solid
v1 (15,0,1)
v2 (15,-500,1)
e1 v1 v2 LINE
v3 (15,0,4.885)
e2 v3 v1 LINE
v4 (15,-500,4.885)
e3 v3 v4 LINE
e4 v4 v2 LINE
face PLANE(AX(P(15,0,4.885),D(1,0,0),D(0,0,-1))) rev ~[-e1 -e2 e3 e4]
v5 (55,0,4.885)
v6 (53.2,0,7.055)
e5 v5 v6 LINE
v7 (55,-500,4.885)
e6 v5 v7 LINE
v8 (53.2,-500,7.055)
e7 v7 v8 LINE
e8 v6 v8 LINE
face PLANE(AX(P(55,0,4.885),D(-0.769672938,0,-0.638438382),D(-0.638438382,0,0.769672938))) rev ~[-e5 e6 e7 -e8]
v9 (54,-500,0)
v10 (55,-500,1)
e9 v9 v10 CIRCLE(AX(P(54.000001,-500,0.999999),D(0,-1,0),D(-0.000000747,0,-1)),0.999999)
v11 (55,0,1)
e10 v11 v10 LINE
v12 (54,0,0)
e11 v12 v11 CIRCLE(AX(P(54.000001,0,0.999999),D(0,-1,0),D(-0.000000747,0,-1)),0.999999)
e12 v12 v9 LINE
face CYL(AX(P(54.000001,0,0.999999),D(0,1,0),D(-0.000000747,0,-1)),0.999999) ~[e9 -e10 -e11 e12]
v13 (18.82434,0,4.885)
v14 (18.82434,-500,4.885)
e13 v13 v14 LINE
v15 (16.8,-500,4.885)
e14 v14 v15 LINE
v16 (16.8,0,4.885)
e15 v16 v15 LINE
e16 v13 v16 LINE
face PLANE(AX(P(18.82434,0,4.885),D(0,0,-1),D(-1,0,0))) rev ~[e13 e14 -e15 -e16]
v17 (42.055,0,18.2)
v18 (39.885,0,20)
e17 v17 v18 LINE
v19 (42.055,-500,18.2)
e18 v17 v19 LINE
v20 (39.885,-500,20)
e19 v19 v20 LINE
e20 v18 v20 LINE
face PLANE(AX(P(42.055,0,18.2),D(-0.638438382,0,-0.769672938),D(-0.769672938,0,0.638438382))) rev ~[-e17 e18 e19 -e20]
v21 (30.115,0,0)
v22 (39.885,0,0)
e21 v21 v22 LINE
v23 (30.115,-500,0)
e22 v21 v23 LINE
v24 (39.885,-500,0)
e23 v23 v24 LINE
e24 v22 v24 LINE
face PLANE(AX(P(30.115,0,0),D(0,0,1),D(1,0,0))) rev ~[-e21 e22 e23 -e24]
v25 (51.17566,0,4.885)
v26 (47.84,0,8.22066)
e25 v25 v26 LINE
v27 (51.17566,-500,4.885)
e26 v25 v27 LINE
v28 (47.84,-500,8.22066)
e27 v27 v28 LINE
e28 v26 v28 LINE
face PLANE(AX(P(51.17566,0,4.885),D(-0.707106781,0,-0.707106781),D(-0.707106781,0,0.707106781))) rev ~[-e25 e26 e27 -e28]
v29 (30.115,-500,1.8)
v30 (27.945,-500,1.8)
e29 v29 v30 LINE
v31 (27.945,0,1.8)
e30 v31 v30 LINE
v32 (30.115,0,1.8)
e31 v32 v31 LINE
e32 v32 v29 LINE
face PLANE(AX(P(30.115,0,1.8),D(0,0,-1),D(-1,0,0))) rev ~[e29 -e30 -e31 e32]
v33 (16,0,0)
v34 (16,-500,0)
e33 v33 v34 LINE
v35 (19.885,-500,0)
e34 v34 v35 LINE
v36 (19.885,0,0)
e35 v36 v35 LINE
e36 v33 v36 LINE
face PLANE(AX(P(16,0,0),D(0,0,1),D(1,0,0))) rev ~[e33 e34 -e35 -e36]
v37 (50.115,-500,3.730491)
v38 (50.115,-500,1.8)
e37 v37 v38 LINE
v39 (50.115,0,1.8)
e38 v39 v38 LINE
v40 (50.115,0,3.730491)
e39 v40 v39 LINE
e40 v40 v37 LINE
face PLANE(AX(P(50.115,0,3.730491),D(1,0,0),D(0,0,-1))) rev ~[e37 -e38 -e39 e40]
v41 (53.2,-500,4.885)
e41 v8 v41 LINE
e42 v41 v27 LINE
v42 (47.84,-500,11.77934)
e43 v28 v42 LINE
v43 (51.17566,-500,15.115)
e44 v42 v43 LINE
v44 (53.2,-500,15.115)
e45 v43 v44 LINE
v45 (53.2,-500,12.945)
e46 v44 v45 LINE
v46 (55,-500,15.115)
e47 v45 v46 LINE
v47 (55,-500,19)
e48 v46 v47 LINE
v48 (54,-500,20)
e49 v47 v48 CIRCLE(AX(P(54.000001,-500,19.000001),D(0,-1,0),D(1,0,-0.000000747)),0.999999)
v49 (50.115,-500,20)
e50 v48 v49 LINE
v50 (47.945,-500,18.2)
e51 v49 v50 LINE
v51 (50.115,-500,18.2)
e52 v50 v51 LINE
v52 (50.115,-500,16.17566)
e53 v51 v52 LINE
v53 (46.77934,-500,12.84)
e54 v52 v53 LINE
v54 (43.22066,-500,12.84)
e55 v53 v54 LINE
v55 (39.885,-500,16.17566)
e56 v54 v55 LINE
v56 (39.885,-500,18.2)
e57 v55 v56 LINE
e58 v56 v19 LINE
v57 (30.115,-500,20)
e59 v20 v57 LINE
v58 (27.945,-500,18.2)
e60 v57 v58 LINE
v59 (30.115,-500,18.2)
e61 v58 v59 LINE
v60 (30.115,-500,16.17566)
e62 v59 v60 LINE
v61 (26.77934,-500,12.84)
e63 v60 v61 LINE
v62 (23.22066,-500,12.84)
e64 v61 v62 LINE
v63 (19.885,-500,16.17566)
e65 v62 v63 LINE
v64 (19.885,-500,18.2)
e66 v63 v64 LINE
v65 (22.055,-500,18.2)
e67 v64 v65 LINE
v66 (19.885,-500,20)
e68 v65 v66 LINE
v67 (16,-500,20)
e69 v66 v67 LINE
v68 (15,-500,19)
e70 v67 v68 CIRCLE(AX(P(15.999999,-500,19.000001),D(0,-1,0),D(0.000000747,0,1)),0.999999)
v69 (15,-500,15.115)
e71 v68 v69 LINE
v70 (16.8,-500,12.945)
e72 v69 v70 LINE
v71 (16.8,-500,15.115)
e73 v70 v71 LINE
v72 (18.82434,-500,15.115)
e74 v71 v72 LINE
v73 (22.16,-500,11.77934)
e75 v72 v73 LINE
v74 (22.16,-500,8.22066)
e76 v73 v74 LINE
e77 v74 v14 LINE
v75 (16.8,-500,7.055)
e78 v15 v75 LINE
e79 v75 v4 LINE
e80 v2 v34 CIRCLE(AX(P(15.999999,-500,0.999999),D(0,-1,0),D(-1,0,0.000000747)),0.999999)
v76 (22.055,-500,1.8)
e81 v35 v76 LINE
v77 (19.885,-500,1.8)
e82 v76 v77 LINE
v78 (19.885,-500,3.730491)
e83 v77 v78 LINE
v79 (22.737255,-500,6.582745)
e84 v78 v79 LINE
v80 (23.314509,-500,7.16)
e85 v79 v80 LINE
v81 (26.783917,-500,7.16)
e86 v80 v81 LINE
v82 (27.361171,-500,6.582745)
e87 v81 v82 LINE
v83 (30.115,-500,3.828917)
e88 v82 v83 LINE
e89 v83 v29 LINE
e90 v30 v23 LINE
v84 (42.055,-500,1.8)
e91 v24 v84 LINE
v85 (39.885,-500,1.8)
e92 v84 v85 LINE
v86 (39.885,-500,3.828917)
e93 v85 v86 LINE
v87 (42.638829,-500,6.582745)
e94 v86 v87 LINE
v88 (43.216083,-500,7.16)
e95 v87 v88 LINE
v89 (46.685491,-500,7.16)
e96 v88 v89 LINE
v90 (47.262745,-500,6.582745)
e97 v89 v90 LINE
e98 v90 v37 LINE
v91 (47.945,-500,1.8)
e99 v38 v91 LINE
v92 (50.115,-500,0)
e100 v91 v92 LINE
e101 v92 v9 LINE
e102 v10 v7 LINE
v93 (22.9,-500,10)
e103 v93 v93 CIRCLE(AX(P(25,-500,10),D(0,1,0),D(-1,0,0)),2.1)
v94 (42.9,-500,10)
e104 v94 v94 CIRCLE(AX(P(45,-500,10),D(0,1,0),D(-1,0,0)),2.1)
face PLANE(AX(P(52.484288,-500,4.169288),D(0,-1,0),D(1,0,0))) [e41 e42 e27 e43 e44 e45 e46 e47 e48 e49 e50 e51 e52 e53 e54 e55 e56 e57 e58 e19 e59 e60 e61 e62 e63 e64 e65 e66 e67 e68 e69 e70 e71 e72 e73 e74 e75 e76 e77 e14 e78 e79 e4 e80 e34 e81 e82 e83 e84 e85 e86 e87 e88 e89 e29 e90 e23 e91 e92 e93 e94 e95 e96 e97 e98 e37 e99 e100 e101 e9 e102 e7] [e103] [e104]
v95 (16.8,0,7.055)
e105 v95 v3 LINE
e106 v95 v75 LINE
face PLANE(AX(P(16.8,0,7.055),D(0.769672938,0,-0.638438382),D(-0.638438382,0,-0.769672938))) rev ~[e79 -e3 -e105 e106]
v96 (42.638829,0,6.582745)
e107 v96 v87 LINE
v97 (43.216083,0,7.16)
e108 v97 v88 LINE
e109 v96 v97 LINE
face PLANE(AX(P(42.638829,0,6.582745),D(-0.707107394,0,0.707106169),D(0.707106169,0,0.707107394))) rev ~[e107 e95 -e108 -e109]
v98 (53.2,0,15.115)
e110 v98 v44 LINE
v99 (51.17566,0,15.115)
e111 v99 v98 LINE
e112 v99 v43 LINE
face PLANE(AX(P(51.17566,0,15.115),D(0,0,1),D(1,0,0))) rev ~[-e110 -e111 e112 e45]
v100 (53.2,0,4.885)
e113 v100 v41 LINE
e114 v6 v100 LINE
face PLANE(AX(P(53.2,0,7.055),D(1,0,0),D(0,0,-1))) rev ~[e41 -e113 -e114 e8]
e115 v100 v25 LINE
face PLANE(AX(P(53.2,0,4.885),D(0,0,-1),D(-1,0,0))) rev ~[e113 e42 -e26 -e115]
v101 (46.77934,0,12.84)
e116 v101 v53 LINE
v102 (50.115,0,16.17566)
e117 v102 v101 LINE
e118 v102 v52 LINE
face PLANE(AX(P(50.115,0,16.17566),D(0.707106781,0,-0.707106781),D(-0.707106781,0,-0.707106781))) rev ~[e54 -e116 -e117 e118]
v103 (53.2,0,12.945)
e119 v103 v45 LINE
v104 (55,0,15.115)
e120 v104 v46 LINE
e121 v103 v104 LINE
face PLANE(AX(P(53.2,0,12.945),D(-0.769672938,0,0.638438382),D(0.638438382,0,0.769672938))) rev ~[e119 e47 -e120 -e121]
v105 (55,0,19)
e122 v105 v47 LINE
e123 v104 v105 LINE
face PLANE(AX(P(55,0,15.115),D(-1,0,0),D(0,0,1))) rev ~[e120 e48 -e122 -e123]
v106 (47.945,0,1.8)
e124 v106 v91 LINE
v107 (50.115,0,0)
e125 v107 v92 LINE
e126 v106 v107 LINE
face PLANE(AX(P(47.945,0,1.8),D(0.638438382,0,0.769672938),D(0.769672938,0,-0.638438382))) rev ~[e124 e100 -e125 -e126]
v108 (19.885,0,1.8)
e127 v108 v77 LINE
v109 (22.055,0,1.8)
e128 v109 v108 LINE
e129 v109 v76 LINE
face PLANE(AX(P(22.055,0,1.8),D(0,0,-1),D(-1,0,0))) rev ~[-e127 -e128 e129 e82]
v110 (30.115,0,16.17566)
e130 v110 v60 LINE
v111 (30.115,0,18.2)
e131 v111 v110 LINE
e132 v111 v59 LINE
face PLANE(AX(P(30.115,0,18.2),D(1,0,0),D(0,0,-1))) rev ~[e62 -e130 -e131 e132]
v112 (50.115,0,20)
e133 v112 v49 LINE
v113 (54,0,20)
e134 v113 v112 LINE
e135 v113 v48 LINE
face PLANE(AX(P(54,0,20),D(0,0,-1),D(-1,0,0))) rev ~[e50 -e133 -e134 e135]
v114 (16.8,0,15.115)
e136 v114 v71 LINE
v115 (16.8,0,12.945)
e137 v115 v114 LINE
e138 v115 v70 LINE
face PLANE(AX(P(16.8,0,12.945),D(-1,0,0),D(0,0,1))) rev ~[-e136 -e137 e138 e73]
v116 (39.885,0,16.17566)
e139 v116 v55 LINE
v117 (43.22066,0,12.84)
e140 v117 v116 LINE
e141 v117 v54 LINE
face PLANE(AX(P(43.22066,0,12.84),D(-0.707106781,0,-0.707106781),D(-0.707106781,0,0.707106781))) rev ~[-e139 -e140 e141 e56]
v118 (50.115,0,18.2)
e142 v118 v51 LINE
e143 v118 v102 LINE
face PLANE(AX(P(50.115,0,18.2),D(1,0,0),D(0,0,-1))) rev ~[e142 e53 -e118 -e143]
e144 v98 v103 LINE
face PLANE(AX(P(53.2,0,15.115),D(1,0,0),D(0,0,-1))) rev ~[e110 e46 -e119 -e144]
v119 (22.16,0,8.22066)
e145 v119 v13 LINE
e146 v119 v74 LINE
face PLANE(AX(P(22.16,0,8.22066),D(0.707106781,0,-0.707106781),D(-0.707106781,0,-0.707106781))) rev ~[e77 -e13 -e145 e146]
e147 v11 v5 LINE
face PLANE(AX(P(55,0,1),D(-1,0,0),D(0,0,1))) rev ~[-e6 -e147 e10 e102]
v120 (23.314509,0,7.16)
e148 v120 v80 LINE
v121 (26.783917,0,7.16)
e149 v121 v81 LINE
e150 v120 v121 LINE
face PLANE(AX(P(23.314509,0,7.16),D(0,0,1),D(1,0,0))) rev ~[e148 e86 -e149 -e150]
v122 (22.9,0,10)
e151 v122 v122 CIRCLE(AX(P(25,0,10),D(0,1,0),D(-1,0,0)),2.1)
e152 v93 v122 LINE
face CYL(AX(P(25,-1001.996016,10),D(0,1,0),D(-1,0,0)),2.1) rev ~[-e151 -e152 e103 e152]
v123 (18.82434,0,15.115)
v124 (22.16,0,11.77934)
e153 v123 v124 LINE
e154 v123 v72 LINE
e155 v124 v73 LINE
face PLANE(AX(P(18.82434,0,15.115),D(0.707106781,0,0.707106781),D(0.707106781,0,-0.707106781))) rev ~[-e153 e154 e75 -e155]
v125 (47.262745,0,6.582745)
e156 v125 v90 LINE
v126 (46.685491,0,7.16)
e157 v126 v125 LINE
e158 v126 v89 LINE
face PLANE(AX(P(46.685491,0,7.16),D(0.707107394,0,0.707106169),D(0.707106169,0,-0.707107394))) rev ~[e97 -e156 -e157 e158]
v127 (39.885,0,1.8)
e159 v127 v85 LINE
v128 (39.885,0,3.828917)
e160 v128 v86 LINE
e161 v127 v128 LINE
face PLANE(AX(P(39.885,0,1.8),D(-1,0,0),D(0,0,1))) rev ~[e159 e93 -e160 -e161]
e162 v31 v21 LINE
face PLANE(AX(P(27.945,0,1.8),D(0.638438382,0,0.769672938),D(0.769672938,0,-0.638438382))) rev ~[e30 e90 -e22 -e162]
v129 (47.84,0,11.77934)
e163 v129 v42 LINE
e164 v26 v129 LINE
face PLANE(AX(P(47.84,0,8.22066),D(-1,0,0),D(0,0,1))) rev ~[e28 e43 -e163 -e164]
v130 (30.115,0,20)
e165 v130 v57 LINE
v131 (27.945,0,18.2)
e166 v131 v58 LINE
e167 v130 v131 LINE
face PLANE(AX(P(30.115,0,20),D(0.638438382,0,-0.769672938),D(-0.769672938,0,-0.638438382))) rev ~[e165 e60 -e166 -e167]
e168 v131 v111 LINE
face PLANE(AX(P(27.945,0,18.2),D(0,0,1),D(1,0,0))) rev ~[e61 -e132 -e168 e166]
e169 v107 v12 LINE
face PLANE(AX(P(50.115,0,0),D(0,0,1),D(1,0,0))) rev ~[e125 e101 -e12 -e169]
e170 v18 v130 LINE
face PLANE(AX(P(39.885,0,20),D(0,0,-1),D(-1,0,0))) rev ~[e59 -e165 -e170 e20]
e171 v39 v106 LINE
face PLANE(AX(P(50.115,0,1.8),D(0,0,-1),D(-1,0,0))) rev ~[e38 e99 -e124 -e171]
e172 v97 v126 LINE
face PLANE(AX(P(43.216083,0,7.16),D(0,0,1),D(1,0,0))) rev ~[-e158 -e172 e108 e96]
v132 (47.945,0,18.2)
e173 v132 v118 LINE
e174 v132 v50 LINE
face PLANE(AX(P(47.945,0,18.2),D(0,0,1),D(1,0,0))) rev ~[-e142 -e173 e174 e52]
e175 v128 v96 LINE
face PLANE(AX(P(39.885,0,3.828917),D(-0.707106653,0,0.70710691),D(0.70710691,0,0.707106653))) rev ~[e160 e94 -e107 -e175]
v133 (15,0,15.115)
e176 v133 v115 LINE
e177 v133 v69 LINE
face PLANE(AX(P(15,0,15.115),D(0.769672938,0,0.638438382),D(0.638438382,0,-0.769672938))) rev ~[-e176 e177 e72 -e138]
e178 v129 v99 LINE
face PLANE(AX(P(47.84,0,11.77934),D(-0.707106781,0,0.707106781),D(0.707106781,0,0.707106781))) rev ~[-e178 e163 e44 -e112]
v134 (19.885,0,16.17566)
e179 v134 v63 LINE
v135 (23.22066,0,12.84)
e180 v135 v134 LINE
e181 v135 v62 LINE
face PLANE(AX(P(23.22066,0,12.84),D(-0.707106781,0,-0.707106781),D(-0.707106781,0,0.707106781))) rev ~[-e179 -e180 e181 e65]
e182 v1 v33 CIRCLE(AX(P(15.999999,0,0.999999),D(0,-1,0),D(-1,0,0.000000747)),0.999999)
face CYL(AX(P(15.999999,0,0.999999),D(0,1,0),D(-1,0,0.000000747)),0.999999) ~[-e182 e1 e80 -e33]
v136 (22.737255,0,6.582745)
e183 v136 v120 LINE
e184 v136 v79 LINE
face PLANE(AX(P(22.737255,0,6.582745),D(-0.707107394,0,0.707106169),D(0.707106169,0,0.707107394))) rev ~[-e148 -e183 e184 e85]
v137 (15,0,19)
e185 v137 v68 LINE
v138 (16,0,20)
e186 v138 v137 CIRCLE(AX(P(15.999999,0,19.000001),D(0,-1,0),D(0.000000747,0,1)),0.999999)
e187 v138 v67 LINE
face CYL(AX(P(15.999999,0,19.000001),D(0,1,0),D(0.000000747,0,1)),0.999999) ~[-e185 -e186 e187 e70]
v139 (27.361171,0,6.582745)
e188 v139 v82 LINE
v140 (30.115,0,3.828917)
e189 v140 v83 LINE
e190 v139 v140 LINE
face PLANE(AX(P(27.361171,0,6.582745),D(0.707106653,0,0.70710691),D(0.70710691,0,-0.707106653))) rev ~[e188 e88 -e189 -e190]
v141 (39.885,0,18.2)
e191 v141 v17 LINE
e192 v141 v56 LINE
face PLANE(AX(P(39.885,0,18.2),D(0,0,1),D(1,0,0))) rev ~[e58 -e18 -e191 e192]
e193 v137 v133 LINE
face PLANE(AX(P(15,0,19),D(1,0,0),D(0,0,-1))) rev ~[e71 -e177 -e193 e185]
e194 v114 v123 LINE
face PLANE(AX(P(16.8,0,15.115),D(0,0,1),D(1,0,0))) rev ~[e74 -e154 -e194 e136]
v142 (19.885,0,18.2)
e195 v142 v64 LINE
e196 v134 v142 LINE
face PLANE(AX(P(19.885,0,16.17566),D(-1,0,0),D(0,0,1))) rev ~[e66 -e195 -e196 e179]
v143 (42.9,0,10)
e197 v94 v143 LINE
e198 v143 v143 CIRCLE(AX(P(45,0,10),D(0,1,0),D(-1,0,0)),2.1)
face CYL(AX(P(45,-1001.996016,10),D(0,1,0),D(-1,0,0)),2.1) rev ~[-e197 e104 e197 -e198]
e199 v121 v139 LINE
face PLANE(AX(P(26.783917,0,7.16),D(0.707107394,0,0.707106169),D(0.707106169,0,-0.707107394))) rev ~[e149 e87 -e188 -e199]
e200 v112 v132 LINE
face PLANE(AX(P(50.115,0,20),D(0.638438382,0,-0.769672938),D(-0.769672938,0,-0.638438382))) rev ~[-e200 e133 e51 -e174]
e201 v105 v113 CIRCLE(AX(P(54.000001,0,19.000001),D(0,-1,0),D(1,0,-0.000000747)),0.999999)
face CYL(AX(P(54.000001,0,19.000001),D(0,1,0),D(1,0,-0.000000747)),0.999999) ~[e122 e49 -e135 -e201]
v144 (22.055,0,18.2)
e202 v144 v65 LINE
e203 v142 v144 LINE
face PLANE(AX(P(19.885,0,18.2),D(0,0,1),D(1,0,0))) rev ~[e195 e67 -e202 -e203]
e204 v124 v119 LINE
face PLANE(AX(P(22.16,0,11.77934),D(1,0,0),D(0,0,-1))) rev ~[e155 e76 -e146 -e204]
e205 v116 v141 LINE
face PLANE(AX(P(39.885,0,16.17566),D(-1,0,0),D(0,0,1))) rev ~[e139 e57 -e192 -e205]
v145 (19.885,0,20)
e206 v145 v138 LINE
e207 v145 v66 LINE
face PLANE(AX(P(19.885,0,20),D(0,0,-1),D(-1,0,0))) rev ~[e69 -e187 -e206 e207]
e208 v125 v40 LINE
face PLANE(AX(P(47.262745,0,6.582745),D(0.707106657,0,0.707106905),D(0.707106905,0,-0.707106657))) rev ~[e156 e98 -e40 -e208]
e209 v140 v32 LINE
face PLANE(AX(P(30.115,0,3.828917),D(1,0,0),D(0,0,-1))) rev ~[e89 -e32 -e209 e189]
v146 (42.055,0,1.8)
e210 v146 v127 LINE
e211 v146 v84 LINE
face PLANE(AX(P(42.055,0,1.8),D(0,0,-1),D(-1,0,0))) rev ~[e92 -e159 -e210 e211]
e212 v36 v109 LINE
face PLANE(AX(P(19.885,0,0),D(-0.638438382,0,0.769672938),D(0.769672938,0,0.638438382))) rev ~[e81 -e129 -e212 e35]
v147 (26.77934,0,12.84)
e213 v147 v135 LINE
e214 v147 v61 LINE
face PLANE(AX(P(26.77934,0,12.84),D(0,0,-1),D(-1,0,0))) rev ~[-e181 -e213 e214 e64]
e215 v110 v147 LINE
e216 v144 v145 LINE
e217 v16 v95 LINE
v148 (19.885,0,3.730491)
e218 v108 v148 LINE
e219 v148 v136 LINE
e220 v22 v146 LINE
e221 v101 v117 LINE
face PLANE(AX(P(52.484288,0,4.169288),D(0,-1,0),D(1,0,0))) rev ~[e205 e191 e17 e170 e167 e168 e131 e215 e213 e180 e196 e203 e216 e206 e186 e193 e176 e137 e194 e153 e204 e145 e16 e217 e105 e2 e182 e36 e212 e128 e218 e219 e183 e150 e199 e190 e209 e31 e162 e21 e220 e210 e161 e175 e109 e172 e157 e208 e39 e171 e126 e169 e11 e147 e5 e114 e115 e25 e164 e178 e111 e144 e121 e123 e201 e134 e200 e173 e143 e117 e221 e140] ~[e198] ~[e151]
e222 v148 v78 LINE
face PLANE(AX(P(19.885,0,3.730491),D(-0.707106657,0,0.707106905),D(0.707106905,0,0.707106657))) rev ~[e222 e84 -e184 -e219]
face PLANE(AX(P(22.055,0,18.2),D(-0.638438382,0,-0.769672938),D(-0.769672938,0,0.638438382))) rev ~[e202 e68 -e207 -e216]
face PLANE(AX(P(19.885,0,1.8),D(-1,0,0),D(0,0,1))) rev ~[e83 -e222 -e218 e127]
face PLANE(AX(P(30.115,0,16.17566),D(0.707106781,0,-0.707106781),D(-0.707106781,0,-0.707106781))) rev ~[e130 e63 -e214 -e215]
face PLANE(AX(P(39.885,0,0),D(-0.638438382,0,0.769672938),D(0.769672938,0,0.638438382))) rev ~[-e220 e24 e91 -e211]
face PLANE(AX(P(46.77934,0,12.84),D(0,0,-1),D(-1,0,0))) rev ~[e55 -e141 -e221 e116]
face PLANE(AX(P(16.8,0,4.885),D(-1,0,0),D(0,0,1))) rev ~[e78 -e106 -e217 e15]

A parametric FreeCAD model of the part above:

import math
import FreeCAD as App
import Part
import Sketcher

doc = App.newDocument("Part")
body = doc.addObject("PartDesign::Body", "Body")

# Sketch on XZ plane
sketch1 = body.newObject("Sketcher::SketchObject", "Sketch")
sketch1.AttachmentSupport = (doc.getObject("XZ_Plane"), [""])
sketch1.MapMode = "FlatFace"
sketch1.addGeometry(Part.LineSegment(App.Vector(50.1, 1.8, 0), App.Vector(47.9, 1.8, 0)), False)
sketch1.addGeometry(Part.LineSegment(App.Vector(47.9, 1.8, 0), App.Vector(50.1, 0, 0)), False)
sketch1.addGeometry(Part.LineSegment(App.Vector(50.1, 0, 0), App.Vector(54, 0, 0)), False)
sketch1.addGeometry(Part.ArcOfCircle(Part.Circle(App.Vector(54, 1, 0), App.Vector(0, 0, 1), 1), math.radians(-90), math.radians(0)), False)
sketch1.addGeometry(Part.LineSegment(App.Vector(55, 1, 0), App.Vector(55, 4.9, 0)), False)
sketch1.addGeometry(Part.LineSegment(App.Vector(55, 4.9, 0), App.Vector(53.2, 7.1, 0)), False)
sketch1.addGeometry(Part.LineSegment(App.Vector(53.2, 7.1, 0), App.Vector(53.2, 4.9, 0)), False)
sketch1.addGeometry(Part.LineSegment(App.Vector(53.2, 4.9, 0), App.Vector(51.2, 4.9, 0)), False)
sketch1.addGeometry(Part.LineSegment(App.Vector(51.2, 4.9, 0), App.Vector(47.8, 8.2, 0)), False)
sketch1.addGeometry(Part.LineSegment(App.Vector(47.8, 8.2, 0), App.Vector(47.8, 11.8, 0)), False)
sketch1.addGeometry(Part.LineSegment(App.Vector(47.8, 11.8, 0), App.Vector(51.2, 15.1, 0)), False)
sketch1.addGeometry(Part.LineSegment(App.Vector(51.2, 15.1, 0), App.Vector(53.2, 15.1, 0)), False)
sketch1.addGeometry(Part.LineSegment(App.Vector(53.2, 15.1, 0), App.Vector(53.2, 12.9, 0)), False)
sketch1.addGeometry(Part.LineSegment(App.Vector(53.2, 12.9, 0), App.Vector(55, 15.1, 0)), False)
sketch1.addGeometry(Part.LineSegment(App.Vector(55, 15.1, 0), App.Vector(55, 19, 0)), False)
sketch1.addGeometry(Part.ArcOfCircle(Part.Circle(App.Vector(54, 19, 0), App.Vector(0, 0, 1), 1), math.radians(0), math.radians(90)), False)
sketch1.addGeometry(Part.LineSegment(App.Vector(54, 20, 0), App.Vector(50.1, 20, 0)), False)
sketch1.addGeometry(Part.LineSegment(App.Vector(50.1, 20, 0), App.Vector(47.9, 18.2, 0)), False)
sketch1.addGeometry(Part.LineSegment(App.Vector(47.9, 18.2, 0), App.Vector(50.1, 18.2, 0)), False)
sketch1.addGeometry(Part.LineSegment(App.Vector(50.1, 18.2, 0), App.Vector(50.1, 16.2, 0)), False)
sketch1.addGeometry(Part.LineSegment(App.Vector(50.1, 16.2, 0), App.Vector(46.8, 12.8, 0)), False)
sketch1.addGeometry(Part.LineSegment(App.Vector(46.8, 12.8, 0), App.Vector(43.2, 12.8, 0)), False)
sketch1.addGeometry(Part.LineSegment(App.Vector(43.2, 12.8, 0), App.Vector(39.9, 16.2, 0)), False)
sketch1.addGeometry(Part.LineSegment(App.Vector(39.9, 16.2, 0), App.Vector(39.9, 18.2, 0)), False)
sketch1.addGeometry(Part.LineSegment(App.Vector(39.9, 18.2, 0), App.Vector(42.1, 18.2, 0)), False)
sketch1.addGeometry(Part.LineSegment(App.Vector(42.1, 18.2, 0), App.Vector(39.9, 20, 0)), False)
sketch1.addGeometry(Part.LineSegment(App.Vector(39.9, 20, 0), App.Vector(30.1, 20, 0)), False)
sketch1.addGeometry(Part.LineSegment(App.Vector(30.1, 20, 0), App.Vector(27.9, 18.2, 0)), False)
sketch1.addGeometry(Part.LineSegment(App.Vector(27.9, 18.2, 0), App.Vector(30.1, 18.2, 0)), False)
sketch1.addGeometry(Part.LineSegment(App.Vector(30.1, 18.2, 0), App.Vector(30.1, 16.2, 0)), False)
sketch1.addGeometry(Part.LineSegment(App.Vector(30.1, 16.2, 0), App.Vector(26.8, 12.8, 0)), False)
sketch1.addGeometry(Part.LineSegment(App.Vector(26.8, 12.8, 0), App.Vector(23.2, 12.8, 0)), False)
sketch1.addGeometry(Part.LineSegment(App.Vector(23.2, 12.8, 0), App.Vector(19.9, 16.2, 0)), False)
sketch1.addGeometry(Part.LineSegment(App.Vector(19.9, 16.2, 0), App.Vector(19.9, 18.2, 0)), False)
sketch1.addGeometry(Part.LineSegment(App.Vector(19.9, 18.2, 0), App.Vector(22.1, 18.2, 0)), False)
sketch1.addGeometry(Part.LineSegment(App.Vector(22.1, 18.2, 0), App.Vector(19.9, 20, 0)), False)
sketch1.addGeometry(Part.LineSegment(App.Vector(19.9, 20, 0), App.Vector(16, 20, 0)), False)
sketch1.addGeometry(Part.ArcOfCircle(Part.Circle(App.Vector(16, 19, 0), App.Vector(0, 0, 1), 1), math.radians(90), math.radians(180)), False)
sketch1.addGeometry(Part.LineSegment(App.Vector(15, 19, 0), App.Vector(15, 15.1, 0)), False)
sketch1.addGeometry(Part.LineSegment(App.Vector(15, 15.1, 0), App.Vector(16.8, 12.9, 0)), False)
sketch1.addGeometry(Part.LineSegment(App.Vector(16.8, 12.9, 0), App.Vector(16.8, 15.1, 0)), False)
sketch1.addGeometry(Part.LineSegment(App.Vector(16.8, 15.1, 0), App.Vector(18.8, 15.1, 0)), False)
sketch1.addGeometry(Part.LineSegment(App.Vector(18.8, 15.1, 0), App.Vector(22.2, 11.8, 0)), False)
sketch1.addGeometry(Part.LineSegment(App.Vector(22.2, 11.8, 0), App.Vector(22.2, 8.2, 0)), False)
sketch1.addGeometry(Part.LineSegment(App.Vector(22.2, 8.2, 0), App.Vector(18.8, 4.9, 0)), False)
sketch1.addGeometry(Part.LineSegment(App.Vector(18.8, 4.9, 0), App.Vector(16.8, 4.9, 0)), False)
sketch1.addGeometry(Part.LineSegment(App.Vector(16.8, 4.9, 0), App.Vector(16.8, 7.1, 0)), False)
sketch1.addGeometry(Part.LineSegment(App.Vector(16.8, 7.1, 0), App.Vector(15, 4.9, 0)), False)
sketch1.addGeometry(Part.LineSegment(App.Vector(15, 4.9, 0), App.Vector(15, 1, 0)), False)
sketch1.addGeometry(Part.ArcOfCircle(Part.Circle(App.Vector(16, 1, 0), App.Vector(0, 0, 1), 1), math.radians(180), math.radians(270)), False)
sketch1.addGeometry(Part.LineSegment(App.Vector(16, 0, 0), App.Vector(19.9, 0, 0)), False)
sketch1.addGeometry(Part.LineSegment(App.Vector(19.9, 0, 0), App.Vector(22.1, 1.8, 0)), False)
sketch1.addGeometry(Part.LineSegment(App.Vector(22.1, 1.8, 0), App.Vector(19.9, 1.8, 0)), False)
sketch1.addGeometry(Part.LineSegment(App.Vector(19.9, 1.8, 0), App.Vector(19.9, 3.7, 0)), False)
sketch1.addGeometry(Part.LineSegment(App.Vector(19.9, 3.7, 0), App.Vector(22.7, 6.6, 0)), False)
sketch1.addGeometry(Part.LineSegment(App.Vector(22.7, 6.6, 0), App.Vector(23.3, 7.2, 0)), False)
sketch1.addGeometry(Part.LineSegment(App.Vector(23.3, 7.2, 0), App.Vector(26.8, 7.2, 0)), False)
sketch1.addGeometry(Part.LineSegment(App.Vector(26.8, 7.2, 0), App.Vector(27.4, 6.6, 0)), False)
sketch1.addGeometry(Part.LineSegment(App.Vector(27.4, 6.6, 0), App.Vector(30.1, 3.8, 0)), False)
sketch1.addGeometry(Part.LineSegment(App.Vector(30.1, 3.8, 0), App.Vector(30.1, 1.8, 0)), False)
sketch1.addGeometry(Part.LineSegment(App.Vector(30.1, 1.8, 0), App.Vector(27.9, 1.8, 0)), False)
sketch1.addGeometry(Part.LineSegment(App.Vector(27.9, 1.8, 0), App.Vector(30.1, 0, 0)), False)
sketch1.addGeometry(Part.LineSegment(App.Vector(30.1, 0, 0), App.Vector(39.9, 0, 0)), False)
sketch1.addGeometry(Part.LineSegment(App.Vector(39.9, 0, 0), App.Vector(42.1, 1.8, 0)), False)
sketch1.addGeometry(Part.LineSegment(App.Vector(42.1, 1.8, 0), App.Vector(39.9, 1.8, 0)), False)
sketch1.addGeometry(Part.LineSegment(App.Vector(39.9, 1.8, 0), App.Vector(39.9, 3.8, 0)), False)
sketch1.addGeometry(Part.LineSegment(App.Vector(39.9, 3.8, 0), App.Vector(42.6, 6.6, 0)), False)
sketch1.addGeometry(Part.LineSegment(App.Vector(42.6, 6.6, 0), App.Vector(43.2, 7.2, 0)), False)
sketch1.addGeometry(Part.LineSegment(App.Vector(43.2, 7.2, 0), App.Vector(46.7, 7.2, 0)), False)
sketch1.addGeometry(Part.LineSegment(App.Vector(46.7, 7.2, 0), App.Vector(47.3, 6.6, 0)), False)
sketch1.addGeometry(Part.LineSegment(App.Vector(47.3, 6.6, 0), App.Vector(50.1, 3.7, 0)), False)
sketch1.addGeometry(Part.LineSegment(App.Vector(50.1, 3.7, 0), App.Vector(50.1, 1.8, 0)), False)
sketch1.addConstraint(Sketcher.Constraint("Coincident", 0, 2, 1, 1))
sketch1.addConstraint(Sketcher.Constraint("Coincident", 1, 2, 2, 1))
sketch1.addConstraint(Sketcher.Constraint("Tangent", 2, 2, 3, 1))
sketch1.addConstraint(Sketcher.Constraint("Tangent", 3, 2, 4, 1))
sketch1.addConstraint(Sketcher.Constraint("Coincident", 4, 2, 5, 1))
sketch1.addConstraint(Sketcher.Constraint("Coincident", 5, 2, 6, 1))
sketch1.addConstraint(Sketcher.Constraint("Coincident", 6, 2, 7, 1))
sketch1.addConstraint(Sketcher.Constraint("Coincident", 7, 2, 8, 1))
sketch1.addConstraint(Sketcher.Constraint("Coincident", 8, 2, 9, 1))
sketch1.addConstraint(Sketcher.Constraint("Coincident", 9, 2, 10, 1))
sketch1.addConstraint(Sketcher.Constraint("Coincident", 10, 2, 11, 1))
sketch1.addConstraint(Sketcher.Constraint("Coincident", 11, 2, 12, 1))
sketch1.addConstraint(Sketcher.Constraint("Coincident", 12, 2, 13, 1))
sketch1.addConstraint(Sketcher.Constraint("Coincident", 13, 2, 14, 1))
sketch1.addConstraint(Sketcher.Constraint("Tangent", 14, 2, 15, 1))
sketch1.addConstraint(Sketcher.Constraint("Tangent", 15, 2, 16, 1))
sketch1.addConstraint(Sketcher.Constraint("Coincident", 16, 2, 17, 1))
sketch1.addConstraint(Sketcher.Constraint("Coincident", 17, 2, 18, 1))
sketch1.addConstraint(Sketcher.Constraint("Coincident", 18, 2, 19, 1))
sketch1.addConstraint(Sketcher.Constraint("Coincident", 19, 2, 20, 1))
sketch1.addConstraint(Sketcher.Constraint("Coincident", 20, 2, 21, 1))
sketch1.addConstraint(Sketcher.Constraint("Coincident", 21, 2, 22, 1))
sketch1.addConstraint(Sketcher.Constraint("Coincident", 22, 2, 23, 1))
sketch1.addConstraint(Sketcher.Constraint("Coincident", 23, 2, 24, 1))
sketch1.addConstraint(Sketcher.Constraint("Coincident", 24, 2, 25, 1))
sketch1.addConstraint(Sketcher.Constraint("Coincident", 25, 2, 26, 1))
sketch1.addConstraint(Sketcher.Constraint("Coincident", 26, 2, 27, 1))
sketch1.addConstraint(Sketcher.Constraint("Coincident", 27, 2, 28, 1))
sketch1.addConstraint(Sketcher.Constraint("Coincident", 28, 2, 29, 1))
sketch1.addConstraint(Sketcher.Constraint("Coincident", 29, 2, 30, 1))
sketch1.addConstraint(Sketcher.Constraint("Coincident", 30, 2, 31, 1))
sketch1.addConstraint(Sketcher.Constraint("Coincident", 31, 2, 32, 1))
sketch1.addConstraint(Sketcher.Constraint("Coincident", 32, 2, 33, 1))
sketch1.addConstraint(Sketcher.Constraint("Coincident", 33, 2, 34, 1))
sketch1.addConstraint(Sketcher.Constraint("Coincident", 34, 2, 35, 1))
sketch1.addConstraint(Sketcher.Constraint("Coincident", 35, 2, 36, 1))
sketch1.addConstraint(Sketcher.Constraint("Tangent", 36, 2, 37, 1))
sketch1.addConstraint(Sketcher.Constraint("Tangent", 37, 2, 38, 1))
sketch1.addConstraint(Sketcher.Constraint("Coincident", 38, 2, 39, 1))
sketch1.addConstraint(Sketcher.Constraint("Coincident", 39, 2, 40, 1))
sketch1.addConstraint(Sketcher.Constraint("Coincident", 40, 2, 41, 1))
sketch1.addConstraint(Sketcher.Constraint("Coincident", 41, 2, 42, 1))
sketch1.addConstraint(Sketcher.Constraint("Coincident", 42, 2, 43, 1))
sketch1.addConstraint(Sketcher.Constraint("Coincident", 43, 2, 44, 1))
sketch1.addConstraint(Sketcher.Constraint("Coincident", 44, 2, 45, 1))
sketch1.addConstraint(Sketcher.Constraint("Coincident", 45, 2, 46, 1))
sketch1.addConstraint(Sketcher.Constraint("Coincident", 46, 2, 47, 1))
sketch1.addConstraint(Sketcher.Constraint("Coincident", 47, 2, 48, 1))
sketch1.addConstraint(Sketcher.Constraint("Tangent", 48, 2, 49, 1))
sketch1.addConstraint(Sketcher.Constraint("Tangent", 49, 2, 50, 1))
sketch1.addConstraint(Sketcher.Constraint("Coincident", 50, 2, 51, 1))
sketch1.addConstraint(Sketcher.Constraint("Coincident", 51, 2, 52, 1))
sketch1.addConstraint(Sketcher.Constraint("Coincident", 52, 2, 53, 1))
sketch1.addConstraint(Sketcher.Constraint("Coincident", 53, 2, 54, 1))
sketch1.addConstraint(Sketcher.Constraint("Coincident", 54, 2, 55, 1))
sketch1.addConstraint(Sketcher.Constraint("Coincident", 55, 2, 56, 1))
sketch1.addConstraint(Sketcher.Constraint("Coincident", 56, 2, 57, 1))
sketch1.addConstraint(Sketcher.Constraint("Coincident", 57, 2, 58, 1))
sketch1.addConstraint(Sketcher.Constraint("Coincident", 58, 2, 59, 1))
sketch1.addConstraint(Sketcher.Constraint("Coincident", 59, 2, 60, 1))
sketch1.addConstraint(Sketcher.Constraint("Coincident", 60, 2, 61, 1))
sketch1.addConstraint(Sketcher.Constraint("Coincident", 61, 2, 62, 1))
sketch1.addConstraint(Sketcher.Constraint("Coincident", 62, 2, 63, 1))
sketch1.addConstraint(Sketcher.Constraint("Coincident", 63, 2, 64, 1))
sketch1.addConstraint(Sketcher.Constraint("Coincident", 64, 2, 65, 1))
sketch1.addConstraint(Sketcher.Constraint("Coincident", 65, 2, 66, 1))
sketch1.addConstraint(Sketcher.Constraint("Coincident", 66, 2, 67, 1))
sketch1.addConstraint(Sketcher.Constraint("Coincident", 67, 2, 68, 1))
sketch1.addConstraint(Sketcher.Constraint("Coincident", 68, 2, 69, 1))
sketch1.addConstraint(Sketcher.Constraint("Coincident", 69, 2, 70, 1))
sketch1.addConstraint(Sketcher.Constraint("Coincident", 70, 2, 71, 1))
sketch1.addConstraint(Sketcher.Constraint("Coincident", 71, 2, 0, 1))
sketch1.addConstraint(Sketcher.Constraint("Horizontal", 0))
sketch1.addConstraint(Sketcher.Constraint("Horizontal", 2))
sketch1.addConstraint(Sketcher.Constraint("Vertical", 4))
sketch1.addConstraint(Sketcher.Constraint("Vertical", 6))
sketch1.addConstraint(Sketcher.Constraint("Horizontal", 7))
sketch1.addConstraint(Sketcher.Constraint("Vertical", 9))
sketch1.addConstraint(Sketcher.Constraint("Horizontal", 11))
sketch1.addConstraint(Sketcher.Constraint("Vertical", 12))
sketch1.addConstraint(Sketcher.Constraint("Vertical", 14))
sketch1.addConstraint(Sketcher.Constraint("Horizontal", 16))
sketch1.addConstraint(Sketcher.Constraint("Horizontal", 18))
sketch1.addConstraint(Sketcher.Constraint("Vertical", 19))
sketch1.addConstraint(Sketcher.Constraint("Horizontal", 21))
sketch1.addConstraint(Sketcher.Constraint("Vertical", 23))
sketch1.addConstraint(Sketcher.Constraint("Horizontal", 24))
sketch1.addConstraint(Sketcher.Constraint("Horizontal", 26))
sketch1.addConstraint(Sketcher.Constraint("Horizontal", 28))
sketch1.addConstraint(Sketcher.Constraint("Vertical", 29))
sketch1.addConstraint(Sketcher.Constraint("Horizontal", 31))
sketch1.addConstraint(Sketcher.Constraint("Vertical", 33))
sketch1.addConstraint(Sketcher.Constraint("Horizontal", 34))
sketch1.addConstraint(Sketcher.Constraint("Horizontal", 36))
sketch1.addConstraint(Sketcher.Constraint("Vertical", 38))
sketch1.addConstraint(Sketcher.Constraint("Vertical", 40))
sketch1.addConstraint(Sketcher.Constraint("Horizontal", 41))
sketch1.addConstraint(Sketcher.Constraint("Vertical", 43))
sketch1.addConstraint(Sketcher.Constraint("Horizontal", 45))
sketch1.addConstraint(Sketcher.Constraint("Vertical", 46))
sketch1.addConstraint(Sketcher.Constraint("Vertical", 48))
sketch1.addConstraint(Sketcher.Constraint("Horizontal", 50))
sketch1.addConstraint(Sketcher.Constraint("Horizontal", 52))
sketch1.addConstraint(Sketcher.Constraint("Vertical", 53))
sketch1.addConstraint(Sketcher.Constraint("Horizontal", 56))
sketch1.addConstraint(Sketcher.Constraint("Vertical", 59))
sketch1.addConstraint(Sketcher.Constraint("Horizontal", 60))
sketch1.addConstraint(Sketcher.Constraint("Horizontal", 62))
sketch1.addConstraint(Sketcher.Constraint("Horizontal", 64))
sketch1.addConstraint(Sketcher.Constraint("Vertical", 65))
sketch1.addConstraint(Sketcher.Constraint("Horizontal", 68))
sketch1.addConstraint(Sketcher.Constraint("Vertical", 71))
sketch1.addConstraint(Sketcher.Constraint("Equal", 3, 15))
sketch1.addConstraint(Sketcher.Constraint("Equal", 15, 37))
sketch1.addConstraint(Sketcher.Constraint("Equal", 37, 49))
sketch1.addConstraint(Sketcher.Constraint("PointOnObject", 1, 2, -1))
sketch1.addConstraint(Sketcher.Constraint("PointOnObject", 49, 2, -1))
sketch1.addConstraint(Sketcher.Constraint("PointOnObject", 61, 2, -1))
sketch1.addConstraint(Sketcher.Constraint("Perpendicular", 8, 10))
sketch1.addConstraint(Sketcher.Constraint("Perpendicular", 1, 13))
sketch1.addConstraint(Sketcher.Constraint("Perpendicular", 5, 17))
sketch1.addConstraint(Sketcher.Constraint("Parallel", 10, 20))
sketch1.addConstraint(Sketcher.Constraint("Perpendicular", 20, 22))
sketch1.addConstraint(Sketcher.Constraint("Perpendicular", 13, 25))
sketch1.addConstraint(Sketcher.Constraint("Parallel", 17, 27))
sketch1.addConstraint(Sketcher.Constraint("Perpendicular", 22, 30))
sketch1.addConstraint(Sketcher.Constraint("Perpendicular", 30, 32))
sketch1.addConstraint(Sketcher.Constraint("Parallel", 25, 35))
sketch1.addConstraint(Sketcher.Constraint("Perpendicular", 27, 39))
sketch1.addConstraint(Sketcher.Constraint("Parallel", 32, 42))
sketch1.addConstraint(Sketcher.Constraint("Perpendicular", 42, 44))
sketch1.addConstraint(Sketcher.Constraint("Perpendicular", 35, 47))
sketch1.addConstraint(Sketcher.Constraint("Perpendicular", 39, 51))
sketch1.addConstraint(Sketcher.Constraint("Parallel", 44, 54))
sketch1.addConstraint(Sketcher.Constraint("Parallel", 54, 55))
sketch1.addConstraint(Sketcher.Constraint("Perpendicular", 55, 57))
sketch1.addConstraint(Sketcher.Constraint("Parallel", 57, 58))
sketch1.addConstraint(Sketcher.Constraint("Perpendicular", 47, 61))
sketch1.addConstraint(Sketcher.Constraint("Parallel", 51, 63))
sketch1.addConstraint(Sketcher.Constraint("Perpendicular", 58, 66))
sketch1.addConstraint(Sketcher.Constraint("Parallel", 66, 67))
sketch1.addConstraint(Sketcher.Constraint("Perpendicular", 67, 69))
sketch1.addConstraint(Sketcher.Constraint("Parallel", 69, 70))
sketch1.addConstraint(Sketcher.Constraint("Horizontal", 15, 3, 37, 3))
sketch1.addConstraint(Sketcher.Constraint("Horizontal", 4, 2, 6, 2))
sketch1.addConstraint(Sketcher.Constraint("Horizontal", 11, 2, 13, 2))
sketch1.addConstraint(Sketcher.Constraint("Horizontal", 19, 2, 22, 2))
sketch1.addConstraint(Sketcher.Constraint("Horizontal", 18, 2, 23, 2))
sketch1.addConstraint(Sketcher.Constraint("Horizontal", 16, 2, 25, 2))
sketch1.addConstraint(Sketcher.Constraint("Horizontal", 24, 2, 27, 2))
sketch1.addConstraint(Sketcher.Constraint("Horizontal", 22, 2, 29, 2))
sketch1.addConstraint(Sketcher.Constraint("Horizontal", 21, 2, 30, 2))
sketch1.addConstraint(Sketcher.Constraint("Horizontal", 29, 2, 32, 2))
sketch1.addConstraint(Sketcher.Constraint("Horizontal", 28, 2, 33, 2))
sketch1.addConstraint(Sketcher.Constraint("Horizontal", 13, 2, 38, 2))
sketch1.addConstraint(Sketcher.Constraint("Horizontal", 12, 2, 39, 2))
sketch1.addConstraint(Sketcher.Constraint("Horizontal", 38, 2, 40, 2))
sketch1.addConstraint(Sketcher.Constraint("Horizontal", 9, 2, 42, 2))
sketch1.addConstraint(Sketcher.Constraint("Horizontal", 8, 2, 43, 2))
sketch1.addConstraint(Sketcher.Constraint("Horizontal", 7, 2, 44, 2))
sketch1.addConstraint(Sketcher.Constraint("Horizontal", 5, 2, 46, 2))
sketch1.addConstraint(Sketcher.Constraint("Horizontal", 45, 2, 47, 2))
sketch1.addConstraint(Sketcher.Constraint("Horizontal", 0, 2, 51, 2))
sketch1.addConstraint(Sketcher.Constraint("Horizontal", 54, 2, 57, 2))
sketch1.addConstraint(Sketcher.Constraint("Horizontal", 52, 2, 59, 2))
sketch1.addConstraint(Sketcher.Constraint("Horizontal", 60, 2, 63, 2))
sketch1.addConstraint(Sketcher.Constraint("Horizontal", 58, 2, 65, 2))
sketch1.addConstraint(Sketcher.Constraint("Horizontal", 57, 2, 66, 2))
sketch1.addConstraint(Sketcher.Constraint("Horizontal", 56, 2, 67, 2))
sketch1.addConstraint(Sketcher.Constraint("Horizontal", 66, 2, 69, 2))
sketch1.addConstraint(Sketcher.Constraint("Horizontal", 53, 2, 70, 2))
sketch1.addConstraint(Sketcher.Constraint("Vertical", 3, 3, 15, 3))
sketch1.addConstraint(Sketcher.Constraint("Vertical", 37, 3, 49, 3))
sketch1.addConstraint(Sketcher.Constraint("Vertical", 7, 2, 10, 2))
sketch1.addConstraint(Sketcher.Constraint("Vertical", 6, 2, 11, 2))
sketch1.addConstraint(Sketcher.Constraint("Vertical", 1, 2, 16, 2))
sketch1.addConstraint(Sketcher.Constraint("Vertical", 0, 2, 17, 2))
sketch1.addConstraint(Sketcher.Constraint("Vertical", 16, 2, 18, 2))
sketch1.addConstraint(Sketcher.Constraint("Vertical", 23, 2, 25, 2))
sketch1.addConstraint(Sketcher.Constraint("Vertical", 26, 2, 28, 2))
sketch1.addConstraint(Sketcher.Constraint("Vertical", 33, 2, 35, 2))
sketch1.addConstraint(Sketcher.Constraint("Vertical", 41, 2, 44, 2))
sketch1.addConstraint(Sketcher.Constraint("Vertical", 40, 2, 45, 2))
sketch1.addConstraint(Sketcher.Constraint("Vertical", 35, 2, 50, 2))
sketch1.addConstraint(Sketcher.Constraint("Vertical", 50, 2, 52, 2))
sketch1.addConstraint(Sketcher.Constraint("Vertical", 29, 2, 58, 2))
sketch1.addConstraint(Sketcher.Constraint("Vertical", 27, 2, 60, 2))
sketch1.addConstraint(Sketcher.Constraint("Vertical", 25, 2, 62, 2))
sketch1.addConstraint(Sketcher.Constraint("Vertical", 62, 2, 64, 2))
sketch1.addConstraint(Sketcher.Constraint("Vertical", 19, 2, 70, 2))
sketch1.addConstraint(Sketcher.Constraint("Equal", 21, 31))
sketch1.addConstraint(Sketcher.Constraint("Equal", 16, 36))
sketch1.addConstraint(Sketcher.Constraint("Equal", 11, 41))
sketch1.addConstraint(Sketcher.Constraint("Equal", 50, 4))
sketch1.addConstraint(Sketcher.Constraint("Equal", 64, 6))
sketch1.addConstraint(Sketcher.Constraint("Equal", 31, 9))
sketch1.addConstraint(Sketcher.Constraint("Equal", 4, 14))
sketch1.addConstraint(Sketcher.Constraint("Equal", 45, 19))
sketch1.addConstraint(Sketcher.Constraint("Equal", 10, 20))
sketch1.addConstraint(Sketcher.Constraint("Radius", 3, 0.999999))
sketch1.addConstraint(Sketcher.Constraint("DistanceX", -1, 1, 3, 3, 54.000001))
sketch1.addConstraint(Sketcher.Constraint("DistanceY", -1, 1, 15, 3, 19.000001))
sketch1.addConstraint(Sketcher.Constraint("DistanceX", -1, 1, 37, 3, 15.999999))
sketch1.addConstraint(Sketcher.Constraint("DistanceX", 0, 2, 0, 1, 2.17))
sketch1.addConstraint(Sketcher.Constraint("DistanceX", 26, 2, 26, 1, 9.77))
sketch1.addConstraint(Sketcher.Constraint("DistanceY", -1, 1, 0, 2, 1.8))
sketch1.addConstraint(Sketcher.Constraint("DistanceX", -1, 1, 8, 2, 47.84))
sketch1.addConstraint(Sketcher.Constraint("DistanceY", -1, 1, 55, 2, 7.16))
sketch1.addConstraint(Sketcher.Constraint("Distance", 58, 3.894502))
sketch1.addConstraint(Sketcher.Constraint("DistanceX", 7, 2, 7, 1, 2.02434))
sketch1.addConstraint(Sketcher.Constraint("DistanceX", 68, 1, 68, 2, 3.469408))
sketch1.addConstraint(Sketcher.Constraint("DistanceY", 53, 1, 53, 2, 1.930491))
pad1 = body.newObject("PartDesign::Pad", "Pad")
pad1.Profile = sketch1
pad1.Length = 500

# Sketch on XZ plane
sketch2 = body.newObject("Sketcher::SketchObject", "Sketch001")
sketch2.AttachmentSupport = (doc.getObject("XZ_Plane"), [""])
sketch2.MapMode = "FlatFace"
sketch2.AttachmentOffset = App.Placement(App.Vector(0, 0, 500), App.Rotation())
sketch2.addGeometry(Part.Circle(App.Vector(45, 10, 0), App.Vector(0, 0, 1), 2.1), False)
sketch2.addGeometry(Part.Circle(App.Vector(25, 10, 0), App.Vector(0, 0, 1), 2.1), False)
sketch2.addConstraint(Sketcher.Constraint("Equal", 0, 1))
sketch2.addConstraint(Sketcher.Constraint("Horizontal", 0, 3, 1, 3))
sketch2.addConstraint(Sketcher.Constraint("Diameter", 0, 4.2))
sketch2.addConstraint(Sketcher.Constraint("DistanceX", -1, 1, 0, 3, 45.0))
sketch2.addConstraint(Sketcher.Constraint("DistanceY", -1, 1, 0, 3, 10.0))
sketch2.addConstraint(Sketcher.Constraint("DistanceX", -1, 1, 1, 3, 25.0))
doc.recompute()
hole = body.newObject("PartDesign::Hole", "Hole")
hole.Profile = sketch2
hole.ThreadType = "None"
hole.Diameter = 4.2
hole.DepthType = "ThroughAll"

doc.recompute()
